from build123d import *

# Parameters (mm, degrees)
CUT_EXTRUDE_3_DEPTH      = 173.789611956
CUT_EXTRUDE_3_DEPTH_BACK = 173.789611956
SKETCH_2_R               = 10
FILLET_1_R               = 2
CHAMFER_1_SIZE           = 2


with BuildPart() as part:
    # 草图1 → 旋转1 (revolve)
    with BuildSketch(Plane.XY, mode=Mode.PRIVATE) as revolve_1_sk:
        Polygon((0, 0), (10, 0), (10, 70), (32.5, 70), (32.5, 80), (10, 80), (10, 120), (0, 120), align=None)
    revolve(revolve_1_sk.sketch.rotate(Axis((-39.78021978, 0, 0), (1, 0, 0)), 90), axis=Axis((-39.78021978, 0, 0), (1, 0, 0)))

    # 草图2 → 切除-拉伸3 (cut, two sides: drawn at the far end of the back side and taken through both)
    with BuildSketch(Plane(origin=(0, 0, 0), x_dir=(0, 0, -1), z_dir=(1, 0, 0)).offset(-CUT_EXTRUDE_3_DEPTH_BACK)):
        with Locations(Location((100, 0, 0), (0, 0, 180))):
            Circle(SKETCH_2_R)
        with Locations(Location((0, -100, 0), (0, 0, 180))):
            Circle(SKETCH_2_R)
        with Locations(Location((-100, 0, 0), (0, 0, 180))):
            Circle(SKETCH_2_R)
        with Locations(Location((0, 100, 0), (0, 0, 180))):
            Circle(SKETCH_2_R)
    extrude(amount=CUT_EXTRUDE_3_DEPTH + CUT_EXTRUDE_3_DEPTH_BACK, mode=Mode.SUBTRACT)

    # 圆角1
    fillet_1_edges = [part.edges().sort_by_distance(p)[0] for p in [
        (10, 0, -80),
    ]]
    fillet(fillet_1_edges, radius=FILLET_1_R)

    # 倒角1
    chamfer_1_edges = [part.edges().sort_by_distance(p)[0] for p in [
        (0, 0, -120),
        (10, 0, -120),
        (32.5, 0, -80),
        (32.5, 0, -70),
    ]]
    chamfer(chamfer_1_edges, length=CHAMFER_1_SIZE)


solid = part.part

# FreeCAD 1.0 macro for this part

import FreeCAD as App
import Part
import Sketcher
from FreeCAD import Vector
Q = App.Units.Quantity


def edges_at(feature, points):
    """Names of the edges that pass closest to the given points."""
    edges = feature.Shape.Edges
    near = lambda p: min(range(len(edges)), key=lambda i: edges[i].distToShape(Part.Vertex(*p))[0])
    return sorted({f"Edge{near(p) + 1}" for p in points})


def add_polygon(sketch, points):
    """Adds a closed chain of lines whose ends are joined by coincident constraints."""
    first, n = sketch.GeometryCount, len(points)
    for a, b in zip(points, points[1:] + points[:1]):
        sketch.addGeometry(Part.LineSegment(App.Vector(*a, 0), App.Vector(*b, 0)), False)
    for i in range(n):
        sketch.addConstraint(Sketcher.Constraint("Coincident", first + i, 2, first + (i + 1) % n, 1))

doc = App.newDocument("Part")
body = doc.addObject("PartDesign::Body", "Body")

# Sketch on XY plane
sketch1 = body.newObject("Sketcher::SketchObject", "Sketch")
sketch1.AttachmentSupport = (doc.getObject("XY_Plane"), [""])
sketch1.MapMode = "FlatFace"
add_polygon(sketch1, [(0, 0), (10, 0), (10, 70), (32, 70), (32, 80), (10, 80), (10, 120), (0, 120)])  # lines 0-7
sketch1.addConstraint([
    Sketcher.Constraint("Horizontal", 0),
    Sketcher.Constraint("Vertical", 1),
    Sketcher.Constraint("Horizontal", 2),
    Sketcher.Constraint("Vertical", 3),
    Sketcher.Constraint("Horizontal", 4),
    Sketcher.Constraint("Vertical", 5),
    Sketcher.Constraint("Horizontal", 6),
    Sketcher.Constraint("Vertical", 7),
    Sketcher.Constraint("Coincident", 7, 2, -1, 1),
    Sketcher.Constraint("Vertical", 1, 2, 4, 2),
    Sketcher.Constraint("Equal", 6, 3),
    Sketcher.Constraint("DistanceX", 0, 1, 0, 2, Q("10 mm")),
    Sketcher.Constraint("DistanceY", 1, 1, 1, 2, Q("70 mm")),
    Sketcher.Constraint("DistanceY", 5, 1, 5, 2, Q("40 mm")),
    Sketcher.Constraint("DistanceX", 2, 1, 2, 2, Q("22.5 mm")),
])
revolution = body.newObject("PartDesign::Revolution", "Revolution")
revolution.Profile = sketch1
revolution.ReferenceAxis = (sketch1, ["H_Axis"])
revolution.Angle = 360

# Sketch on YZ plane
sketch2 = body.newObject("Sketcher::SketchObject", "Sketch001")
sketch2.AttachmentSupport = (doc.getObject("YZ_Plane"), [""])
sketch2.MapMode = "FlatFace"
sketch2.addGeometry([
    Part.Circle(Vector(0, -100, 0), Vector(0, 0, 1), 10),
    Part.Circle(Vector(-100, 0, 0), Vector(0, 0, 1), 10),
    Part.Circle(Vector(0, 100, 0), Vector(0, 0, 1), 10),
    Part.Circle(Vector(100, 0, 0), Vector(0, 0, 1), 10),
], False)
sketch2.addConstraint([
    Sketcher.Constraint("Equal", 0, 1),
    Sketcher.Constraint("Equal", 1, 2),
    Sketcher.Constraint("Equal", 2, 3),
    Sketcher.Constraint("Symmetric", 0, 3, 2, 3, -1, 1),
    Sketcher.Constraint("Symmetric", 1, 3, 3, 3, -1, 1),
    Sketcher.Constraint("PointOnObject", 0, 3, -2),
    Sketcher.Constraint("PointOnObject", 1, 3, -1),
    Sketcher.Constraint("Diameter", 0, Q("20 mm")),
    Sketcher.Constraint("DistanceY", 0, 3, -1, 1, Q("100 mm")),
    Sketcher.Constraint("DistanceX", 1, 3, -1, 1, Q("100 mm")),
])
pocket1 = body.newObject("PartDesign::Pocket", "Pocket")
pocket1.Profile = sketch2
pocket1.Type = "ThroughAll"
pocket1.Midplane = True
doc.recompute()

fillet = body.newObject("PartDesign::Fillet", "Fillet")
fillet.Base = (pocket1, edges_at(pocket1, [(10, 0, -80)]))
fillet.Radius = 2
doc.recompute()

chamfer = body.newObject("PartDesign::Chamfer", "Chamfer")
chamfer.Base = (fillet, edges_at(fillet, [
    (0, 0, -120),
    (10, 0, -120),
    (32.5, 0, -80),
    (32.5, 0, -70),
]))
chamfer.Size = 2

doc.recompute()
